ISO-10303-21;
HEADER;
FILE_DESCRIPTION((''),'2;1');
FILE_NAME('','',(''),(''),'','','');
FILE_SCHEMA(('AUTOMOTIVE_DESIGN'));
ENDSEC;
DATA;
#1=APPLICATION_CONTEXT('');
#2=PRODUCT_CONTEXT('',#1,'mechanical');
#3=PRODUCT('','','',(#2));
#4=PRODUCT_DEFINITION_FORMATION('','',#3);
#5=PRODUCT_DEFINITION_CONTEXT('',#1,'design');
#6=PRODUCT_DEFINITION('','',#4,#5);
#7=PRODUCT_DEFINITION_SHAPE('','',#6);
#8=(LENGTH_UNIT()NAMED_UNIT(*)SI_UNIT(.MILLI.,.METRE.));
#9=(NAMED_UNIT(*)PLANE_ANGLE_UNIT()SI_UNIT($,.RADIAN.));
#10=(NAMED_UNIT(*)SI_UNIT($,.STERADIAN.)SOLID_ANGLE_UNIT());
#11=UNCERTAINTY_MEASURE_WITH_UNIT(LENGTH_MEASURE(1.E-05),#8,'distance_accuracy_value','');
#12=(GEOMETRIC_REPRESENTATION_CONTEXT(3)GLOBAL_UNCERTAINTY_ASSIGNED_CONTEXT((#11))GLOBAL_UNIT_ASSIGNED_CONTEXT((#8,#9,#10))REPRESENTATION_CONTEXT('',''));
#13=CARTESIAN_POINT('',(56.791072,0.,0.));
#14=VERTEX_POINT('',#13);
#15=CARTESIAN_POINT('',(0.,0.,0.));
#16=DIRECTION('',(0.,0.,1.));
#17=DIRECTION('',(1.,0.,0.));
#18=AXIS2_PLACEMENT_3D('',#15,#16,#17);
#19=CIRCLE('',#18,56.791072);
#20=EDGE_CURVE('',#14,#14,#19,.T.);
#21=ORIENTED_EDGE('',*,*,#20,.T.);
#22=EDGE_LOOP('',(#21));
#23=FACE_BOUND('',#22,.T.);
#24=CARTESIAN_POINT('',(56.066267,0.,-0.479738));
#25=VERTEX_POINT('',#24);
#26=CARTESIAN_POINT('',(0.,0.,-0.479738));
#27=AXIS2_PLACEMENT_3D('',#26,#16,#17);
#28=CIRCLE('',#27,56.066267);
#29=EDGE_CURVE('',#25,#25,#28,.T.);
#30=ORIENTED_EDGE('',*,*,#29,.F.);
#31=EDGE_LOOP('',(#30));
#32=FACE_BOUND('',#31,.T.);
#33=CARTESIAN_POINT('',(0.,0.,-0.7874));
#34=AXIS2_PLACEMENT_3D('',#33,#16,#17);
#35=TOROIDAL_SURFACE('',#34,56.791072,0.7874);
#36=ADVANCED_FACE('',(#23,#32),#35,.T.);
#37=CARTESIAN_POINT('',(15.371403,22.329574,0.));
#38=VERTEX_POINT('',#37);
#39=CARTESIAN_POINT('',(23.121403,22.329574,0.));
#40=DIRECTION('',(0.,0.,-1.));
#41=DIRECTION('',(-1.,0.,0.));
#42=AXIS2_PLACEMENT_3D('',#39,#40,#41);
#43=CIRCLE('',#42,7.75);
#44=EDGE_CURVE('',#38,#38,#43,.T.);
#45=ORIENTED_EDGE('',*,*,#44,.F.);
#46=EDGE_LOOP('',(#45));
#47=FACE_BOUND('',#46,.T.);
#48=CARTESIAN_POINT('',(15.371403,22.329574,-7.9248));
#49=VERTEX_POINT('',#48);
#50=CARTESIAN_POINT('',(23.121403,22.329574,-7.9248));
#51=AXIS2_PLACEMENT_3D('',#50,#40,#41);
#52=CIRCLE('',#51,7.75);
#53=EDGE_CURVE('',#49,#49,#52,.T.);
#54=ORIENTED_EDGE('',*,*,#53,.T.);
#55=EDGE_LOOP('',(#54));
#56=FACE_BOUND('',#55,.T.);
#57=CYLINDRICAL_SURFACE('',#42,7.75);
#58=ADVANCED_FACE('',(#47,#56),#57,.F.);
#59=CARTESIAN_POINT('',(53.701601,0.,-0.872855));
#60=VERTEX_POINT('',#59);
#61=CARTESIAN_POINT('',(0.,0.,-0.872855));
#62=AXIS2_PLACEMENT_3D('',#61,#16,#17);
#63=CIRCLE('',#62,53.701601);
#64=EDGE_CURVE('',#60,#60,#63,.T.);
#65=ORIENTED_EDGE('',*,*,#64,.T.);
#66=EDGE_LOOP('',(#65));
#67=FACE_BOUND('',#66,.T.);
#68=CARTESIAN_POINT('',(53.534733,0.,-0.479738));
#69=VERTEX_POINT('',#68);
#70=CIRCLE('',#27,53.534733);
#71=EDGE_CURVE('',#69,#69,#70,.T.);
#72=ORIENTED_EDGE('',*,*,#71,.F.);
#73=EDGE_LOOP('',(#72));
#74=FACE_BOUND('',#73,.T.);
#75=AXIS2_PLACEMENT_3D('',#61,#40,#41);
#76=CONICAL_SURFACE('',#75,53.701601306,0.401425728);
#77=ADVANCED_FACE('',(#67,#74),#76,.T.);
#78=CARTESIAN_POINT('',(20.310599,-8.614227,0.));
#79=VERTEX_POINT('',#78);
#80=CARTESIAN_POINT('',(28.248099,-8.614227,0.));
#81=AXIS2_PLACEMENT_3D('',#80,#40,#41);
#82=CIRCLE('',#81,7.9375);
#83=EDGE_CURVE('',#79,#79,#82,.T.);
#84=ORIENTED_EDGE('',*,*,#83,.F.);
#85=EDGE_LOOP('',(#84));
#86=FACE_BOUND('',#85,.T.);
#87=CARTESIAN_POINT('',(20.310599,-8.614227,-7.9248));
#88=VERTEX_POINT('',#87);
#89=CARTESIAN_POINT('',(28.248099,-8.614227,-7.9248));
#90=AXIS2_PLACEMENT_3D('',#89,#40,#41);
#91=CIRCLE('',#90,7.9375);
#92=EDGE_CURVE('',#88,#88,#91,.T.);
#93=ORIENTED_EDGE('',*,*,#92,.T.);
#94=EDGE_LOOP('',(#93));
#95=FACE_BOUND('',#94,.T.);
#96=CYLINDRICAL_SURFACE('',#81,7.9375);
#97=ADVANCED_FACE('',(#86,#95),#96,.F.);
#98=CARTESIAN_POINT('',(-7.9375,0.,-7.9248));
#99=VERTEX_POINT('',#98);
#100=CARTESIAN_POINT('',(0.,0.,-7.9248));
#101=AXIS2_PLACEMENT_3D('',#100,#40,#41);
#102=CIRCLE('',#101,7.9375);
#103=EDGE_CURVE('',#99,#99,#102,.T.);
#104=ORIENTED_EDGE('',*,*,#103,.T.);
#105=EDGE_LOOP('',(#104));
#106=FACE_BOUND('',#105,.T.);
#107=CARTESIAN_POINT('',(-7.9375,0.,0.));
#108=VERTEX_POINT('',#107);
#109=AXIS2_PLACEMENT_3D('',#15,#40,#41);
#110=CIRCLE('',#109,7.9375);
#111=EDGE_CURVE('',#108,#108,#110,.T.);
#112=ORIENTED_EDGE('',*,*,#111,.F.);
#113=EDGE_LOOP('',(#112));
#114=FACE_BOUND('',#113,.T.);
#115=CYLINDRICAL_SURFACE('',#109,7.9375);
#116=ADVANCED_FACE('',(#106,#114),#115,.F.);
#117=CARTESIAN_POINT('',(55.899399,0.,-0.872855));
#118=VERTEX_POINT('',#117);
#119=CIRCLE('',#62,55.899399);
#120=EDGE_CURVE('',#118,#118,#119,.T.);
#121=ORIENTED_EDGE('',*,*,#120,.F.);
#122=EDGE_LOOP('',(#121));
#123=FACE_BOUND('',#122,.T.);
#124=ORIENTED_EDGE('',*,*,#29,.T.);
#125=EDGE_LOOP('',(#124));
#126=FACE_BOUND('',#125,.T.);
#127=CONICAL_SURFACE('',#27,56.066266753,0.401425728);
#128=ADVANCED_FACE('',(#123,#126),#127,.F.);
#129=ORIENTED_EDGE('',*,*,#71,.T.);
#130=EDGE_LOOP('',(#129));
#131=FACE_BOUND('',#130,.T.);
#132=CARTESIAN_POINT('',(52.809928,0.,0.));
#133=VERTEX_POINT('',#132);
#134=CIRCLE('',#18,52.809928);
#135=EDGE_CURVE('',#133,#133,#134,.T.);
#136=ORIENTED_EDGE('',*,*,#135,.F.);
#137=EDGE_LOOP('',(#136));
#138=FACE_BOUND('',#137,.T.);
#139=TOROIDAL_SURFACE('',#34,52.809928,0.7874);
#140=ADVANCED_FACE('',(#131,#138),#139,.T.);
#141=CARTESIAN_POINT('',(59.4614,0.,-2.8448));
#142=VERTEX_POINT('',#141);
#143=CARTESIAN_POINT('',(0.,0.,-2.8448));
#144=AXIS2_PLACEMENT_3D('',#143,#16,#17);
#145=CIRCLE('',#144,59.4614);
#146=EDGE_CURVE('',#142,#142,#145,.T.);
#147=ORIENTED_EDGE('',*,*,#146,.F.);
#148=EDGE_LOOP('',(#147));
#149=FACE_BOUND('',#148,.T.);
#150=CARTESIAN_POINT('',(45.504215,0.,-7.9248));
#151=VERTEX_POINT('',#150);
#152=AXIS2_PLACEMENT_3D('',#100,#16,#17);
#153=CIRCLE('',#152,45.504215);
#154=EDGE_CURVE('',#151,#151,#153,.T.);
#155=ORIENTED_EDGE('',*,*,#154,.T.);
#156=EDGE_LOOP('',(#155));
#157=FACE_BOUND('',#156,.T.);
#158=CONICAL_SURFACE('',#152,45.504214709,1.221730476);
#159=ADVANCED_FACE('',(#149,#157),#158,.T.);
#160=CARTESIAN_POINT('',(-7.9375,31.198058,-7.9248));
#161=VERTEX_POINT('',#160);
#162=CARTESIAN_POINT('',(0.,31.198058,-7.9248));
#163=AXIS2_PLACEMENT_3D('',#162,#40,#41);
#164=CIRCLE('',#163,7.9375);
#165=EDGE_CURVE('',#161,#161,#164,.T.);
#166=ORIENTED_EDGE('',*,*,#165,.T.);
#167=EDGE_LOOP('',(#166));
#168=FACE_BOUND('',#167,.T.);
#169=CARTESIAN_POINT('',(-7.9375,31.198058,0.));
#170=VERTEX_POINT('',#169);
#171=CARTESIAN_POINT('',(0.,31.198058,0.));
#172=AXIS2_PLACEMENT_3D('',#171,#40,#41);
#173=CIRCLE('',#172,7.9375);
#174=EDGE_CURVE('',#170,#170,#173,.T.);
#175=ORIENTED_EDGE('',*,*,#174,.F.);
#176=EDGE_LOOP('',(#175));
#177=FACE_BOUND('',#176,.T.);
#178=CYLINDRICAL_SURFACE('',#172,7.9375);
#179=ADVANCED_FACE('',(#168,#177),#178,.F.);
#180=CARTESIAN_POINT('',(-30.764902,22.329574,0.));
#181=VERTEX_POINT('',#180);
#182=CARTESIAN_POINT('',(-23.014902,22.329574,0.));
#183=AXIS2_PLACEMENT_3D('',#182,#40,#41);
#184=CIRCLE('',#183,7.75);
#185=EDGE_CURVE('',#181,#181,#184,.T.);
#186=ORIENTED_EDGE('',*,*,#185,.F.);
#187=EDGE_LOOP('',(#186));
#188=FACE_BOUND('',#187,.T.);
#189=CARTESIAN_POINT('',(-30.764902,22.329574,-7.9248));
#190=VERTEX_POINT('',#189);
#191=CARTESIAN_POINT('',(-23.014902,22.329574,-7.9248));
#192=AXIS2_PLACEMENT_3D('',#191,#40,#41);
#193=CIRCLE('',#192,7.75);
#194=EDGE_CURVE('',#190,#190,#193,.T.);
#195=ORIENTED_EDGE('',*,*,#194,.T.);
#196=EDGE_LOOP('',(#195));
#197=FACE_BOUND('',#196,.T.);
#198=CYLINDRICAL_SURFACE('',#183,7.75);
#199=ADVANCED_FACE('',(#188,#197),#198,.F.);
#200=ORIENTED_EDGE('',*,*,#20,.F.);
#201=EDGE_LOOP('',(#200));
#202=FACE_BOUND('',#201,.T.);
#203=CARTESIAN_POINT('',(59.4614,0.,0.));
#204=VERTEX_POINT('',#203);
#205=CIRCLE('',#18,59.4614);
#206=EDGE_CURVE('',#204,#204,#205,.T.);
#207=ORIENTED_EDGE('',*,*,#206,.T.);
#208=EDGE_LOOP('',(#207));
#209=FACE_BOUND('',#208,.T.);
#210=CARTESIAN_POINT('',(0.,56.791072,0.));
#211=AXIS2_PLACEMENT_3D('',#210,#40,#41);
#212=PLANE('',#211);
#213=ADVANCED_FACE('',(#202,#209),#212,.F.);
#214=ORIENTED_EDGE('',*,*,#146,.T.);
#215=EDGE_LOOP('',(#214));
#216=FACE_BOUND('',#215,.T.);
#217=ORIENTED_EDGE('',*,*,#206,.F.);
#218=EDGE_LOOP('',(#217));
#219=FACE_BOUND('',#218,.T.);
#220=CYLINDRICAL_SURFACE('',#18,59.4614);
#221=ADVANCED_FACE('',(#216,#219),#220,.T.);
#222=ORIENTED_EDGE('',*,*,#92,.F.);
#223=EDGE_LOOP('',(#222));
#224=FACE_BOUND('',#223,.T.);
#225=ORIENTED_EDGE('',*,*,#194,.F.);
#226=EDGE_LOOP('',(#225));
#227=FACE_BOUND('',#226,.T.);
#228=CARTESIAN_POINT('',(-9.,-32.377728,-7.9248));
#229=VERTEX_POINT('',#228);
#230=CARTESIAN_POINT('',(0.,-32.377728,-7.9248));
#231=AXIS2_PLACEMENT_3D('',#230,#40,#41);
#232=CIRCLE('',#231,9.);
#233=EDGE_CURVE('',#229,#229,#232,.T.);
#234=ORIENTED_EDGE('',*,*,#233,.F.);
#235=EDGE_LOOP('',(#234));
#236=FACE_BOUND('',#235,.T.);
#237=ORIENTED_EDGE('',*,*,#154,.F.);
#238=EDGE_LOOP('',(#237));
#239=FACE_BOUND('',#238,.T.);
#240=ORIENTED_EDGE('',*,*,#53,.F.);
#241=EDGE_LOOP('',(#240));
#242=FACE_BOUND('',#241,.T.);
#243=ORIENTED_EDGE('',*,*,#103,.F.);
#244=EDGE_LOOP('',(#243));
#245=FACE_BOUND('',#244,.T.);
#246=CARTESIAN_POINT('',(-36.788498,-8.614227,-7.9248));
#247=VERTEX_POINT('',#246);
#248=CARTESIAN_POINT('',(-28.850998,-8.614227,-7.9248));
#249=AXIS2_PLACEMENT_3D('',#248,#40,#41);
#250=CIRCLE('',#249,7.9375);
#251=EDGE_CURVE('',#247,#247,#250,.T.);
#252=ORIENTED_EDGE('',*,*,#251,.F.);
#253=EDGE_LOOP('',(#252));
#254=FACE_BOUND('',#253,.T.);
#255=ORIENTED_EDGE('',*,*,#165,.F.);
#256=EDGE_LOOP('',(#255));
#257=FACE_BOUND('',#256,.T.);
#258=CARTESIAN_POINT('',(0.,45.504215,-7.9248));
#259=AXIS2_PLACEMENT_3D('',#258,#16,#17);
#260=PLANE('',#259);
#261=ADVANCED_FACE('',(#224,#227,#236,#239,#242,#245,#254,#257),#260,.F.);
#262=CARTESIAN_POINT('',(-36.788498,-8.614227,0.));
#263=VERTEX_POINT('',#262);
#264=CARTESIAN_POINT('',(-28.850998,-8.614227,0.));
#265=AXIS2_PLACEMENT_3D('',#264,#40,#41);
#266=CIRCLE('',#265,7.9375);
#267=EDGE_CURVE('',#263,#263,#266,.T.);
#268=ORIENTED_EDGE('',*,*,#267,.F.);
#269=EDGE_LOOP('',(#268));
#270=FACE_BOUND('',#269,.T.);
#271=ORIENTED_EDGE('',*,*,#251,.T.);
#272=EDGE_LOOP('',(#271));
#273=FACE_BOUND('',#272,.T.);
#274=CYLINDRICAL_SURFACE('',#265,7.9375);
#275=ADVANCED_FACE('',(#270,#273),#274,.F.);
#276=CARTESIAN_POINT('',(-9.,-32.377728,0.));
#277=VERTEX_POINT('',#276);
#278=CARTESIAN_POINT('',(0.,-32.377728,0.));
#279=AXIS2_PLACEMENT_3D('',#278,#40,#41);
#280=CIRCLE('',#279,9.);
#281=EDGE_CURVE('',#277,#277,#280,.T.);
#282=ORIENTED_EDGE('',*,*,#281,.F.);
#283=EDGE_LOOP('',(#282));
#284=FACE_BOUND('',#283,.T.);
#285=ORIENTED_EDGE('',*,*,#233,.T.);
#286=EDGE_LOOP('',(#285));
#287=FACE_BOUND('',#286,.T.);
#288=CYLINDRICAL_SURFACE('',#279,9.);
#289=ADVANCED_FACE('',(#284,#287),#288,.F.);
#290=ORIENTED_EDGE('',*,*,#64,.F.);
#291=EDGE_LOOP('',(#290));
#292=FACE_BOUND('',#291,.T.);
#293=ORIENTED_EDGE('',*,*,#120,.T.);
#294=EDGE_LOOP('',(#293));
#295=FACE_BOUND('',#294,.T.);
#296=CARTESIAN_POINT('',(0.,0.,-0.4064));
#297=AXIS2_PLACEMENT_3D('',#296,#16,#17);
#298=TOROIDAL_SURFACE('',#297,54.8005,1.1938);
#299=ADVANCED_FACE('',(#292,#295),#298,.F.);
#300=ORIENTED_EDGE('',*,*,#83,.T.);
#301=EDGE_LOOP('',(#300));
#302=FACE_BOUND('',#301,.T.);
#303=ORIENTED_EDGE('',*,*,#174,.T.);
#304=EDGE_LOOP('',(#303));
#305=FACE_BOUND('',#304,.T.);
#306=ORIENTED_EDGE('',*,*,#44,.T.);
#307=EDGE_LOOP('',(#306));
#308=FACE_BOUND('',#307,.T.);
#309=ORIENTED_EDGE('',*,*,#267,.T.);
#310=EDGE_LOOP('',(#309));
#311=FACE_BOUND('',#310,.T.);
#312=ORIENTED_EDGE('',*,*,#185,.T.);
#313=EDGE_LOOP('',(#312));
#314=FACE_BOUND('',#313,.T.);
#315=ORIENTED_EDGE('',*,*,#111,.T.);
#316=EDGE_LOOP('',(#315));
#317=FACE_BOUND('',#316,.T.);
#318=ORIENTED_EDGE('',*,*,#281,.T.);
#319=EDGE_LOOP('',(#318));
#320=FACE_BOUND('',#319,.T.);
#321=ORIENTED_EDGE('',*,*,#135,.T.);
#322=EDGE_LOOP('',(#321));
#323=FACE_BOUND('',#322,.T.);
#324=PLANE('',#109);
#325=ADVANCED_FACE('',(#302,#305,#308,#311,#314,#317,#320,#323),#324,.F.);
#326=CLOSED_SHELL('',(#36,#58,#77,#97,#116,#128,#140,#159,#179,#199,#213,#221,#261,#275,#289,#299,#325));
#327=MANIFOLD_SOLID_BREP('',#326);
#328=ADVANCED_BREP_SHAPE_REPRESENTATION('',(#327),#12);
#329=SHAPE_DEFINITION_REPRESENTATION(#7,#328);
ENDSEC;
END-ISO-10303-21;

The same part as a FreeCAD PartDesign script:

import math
import FreeCAD as App
import Part
import Sketcher
Q = App.Units.Quantity

doc = App.newDocument("Part")
params = doc.addObject("Spreadsheet::Sheet", "Params")
for row, (alias, value) in enumerate([
    ("sketch1_radius", "0.031 in"),
    ("sketch1_radius2", "0.047 in"),
    ("sketch1_height", "0.312 in"),
    ("revolution_angle", "360 deg"),
    ("sketch2_diameter", "0.625 in"),
], start=1):
    params.set(f"A{row}", alias)
    params.set(f"B{row}", "=" + value)
    params.setAlias(f"B{row}", alias)

body = doc.addObject("PartDesign::Body", "Body")

# Sketch on YZ plane
sketch1 = doc.addObject("Sketcher::SketchObject", "Sketch")
body.addObject(sketch1)
sketch1.AttachmentSupport = (doc.YZ_Plane, [""])
sketch1.MapMode = "FlatFace"
sketch1.addGeometry(Part.LineSegment(App.Vector(52.81, 0, 0), App.Vector(0, 0, 0)), False)
sketch1.addGeometry(Part.LineSegment(App.Vector(0, 0, 0), App.Vector(0, -7.92, 0)), False)
sketch1.addGeometry(Part.LineSegment(App.Vector(0, -7.92, 0), App.Vector(45.5, -7.92, 0)), False)
sketch1.addGeometry(Part.LineSegment(App.Vector(45.5, -7.92, 0), App.Vector(59.46, -2.84, 0)), False)
sketch1.addGeometry(Part.LineSegment(App.Vector(59.46, -2.84, 0), App.Vector(59.46, 0, 0)), False)
sketch1.addGeometry(Part.LineSegment(App.Vector(59.46, 0, 0), App.Vector(56.79, 0, 0)), False)
sketch1.addGeometry(Part.ArcOfCircle(Part.Circle(App.Vector(56.79, -0.79, 0), App.Vector(0, 0, 1), 0.79), math.radians(90), math.radians(157)), False)
sketch1.addGeometry(Part.LineSegment(App.Vector(56.07, -0.48, 0), App.Vector(55.9, -0.87, 0)), False)
sketch1.addGeometry(Part.ArcOfCircle(Part.Circle(App.Vector(54.8, -0.41, 0), App.Vector(0, 0, 1), 1.19), math.radians(-157), math.radians(-23)), False)
sketch1.addGeometry(Part.LineSegment(App.Vector(53.7, -0.87, 0), App.Vector(53.53, -0.48, 0)), False)
sketch1.addGeometry(Part.ArcOfCircle(Part.Circle(App.Vector(52.81, -0.79, 0), App.Vector(0, 0, 1), 0.79), math.radians(23), math.radians(90)), False)
sketch1.addConstraint(Sketcher.Constraint("Coincident", 0, 2, 1, 1))
sketch1.addConstraint(Sketcher.Constraint("Coincident", 1, 2, 2, 1))
sketch1.addConstraint(Sketcher.Constraint("Coincident", 2, 2, 3, 1))
sketch1.addConstraint(Sketcher.Constraint("Coincident", 3, 2, 4, 1))
sketch1.addConstraint(Sketcher.Constraint("Coincident", 4, 2, 5, 1))
sketch1.addConstraint(Sketcher.Constraint("Tangent", 5, 2, 6, 1))
sketch1.addConstraint(Sketcher.Constraint("Tangent", 6, 2, 7, 1))
sketch1.addConstraint(Sketcher.Constraint("Tangent", 7, 2, 8, 2))
sketch1.addConstraint(Sketcher.Constraint("Tangent", 8, 1, 9, 1))
sketch1.addConstraint(Sketcher.Constraint("Tangent", 9, 2, 10, 1))
sketch1.addConstraint(Sketcher.Constraint("Tangent", 10, 2, 0, 1))
sketch1.addConstraint(Sketcher.Constraint("Horizontal", 0))
sketch1.addConstraint(Sketcher.Constraint("Vertical", 1))
sketch1.addConstraint(Sketcher.Constraint("Horizontal", 2))
sketch1.addConstraint(Sketcher.Constraint("Vertical", 4))
sketch1.addConstraint(Sketcher.Constraint("Horizontal", 5))
sketch1.addConstraint(Sketcher.Constraint("Coincident", 0, 2, -1, 1))
sketch1.addConstraint(Sketcher.Constraint("Equal", 6, 10))
sketch1.addConstraint(Sketcher.Constraint("PointOnObject", 4, 2, -1))
sketch1.addConstraint(Sketcher.Constraint("Horizontal", 7, 2, 8, 1))
sketch1.addConstraint(Sketcher.Constraint("Angle", 3, Q("20 deg")))
sketch1.addConstraint(Sketcher.Constraint("Angle", 7, Q("-113 deg")))
sketch1.addConstraint(Sketcher.Constraint("Radius", 6, Q("0.031 in")))
sketch1.addConstraint(Sketcher.Constraint("Radius", 8, Q("0.047 in")))
sketch1.addConstraint(Sketcher.Constraint("DistanceY", 2, 2, 3, 2, Q("0.2 in")))
sketch1.addConstraint(Sketcher.Constraint("DistanceY", 1, 2, 1, 1, Q("0.312 in")))
sketch1.addConstraint(Sketcher.Constraint("DistanceY", 8, 3, -1, 1, Q("0.016 in")))
sketch1.addConstraint(Sketcher.Constraint("DistanceX", -1, 1, 3, 2, Q("2.341 in")))
sketch1.addConstraint(Sketcher.Constraint("DistanceX", -1, 1, 8, 3, Q("2.1575 in")))
sketch1.setExpression("Constraints[22]", "Params.sketch1_radius")
sketch1.setExpression("Constraints[23]", "Params.sketch1_radius2")
sketch1.setExpression("Constraints[25]", "Params.sketch1_height")
revolution = doc.addObject("PartDesign::Revolution", "Revolution")
body.addObject(revolution)
revolution.Profile = sketch1
revolution.ReferenceAxis = (sketch1, ["V_Axis"])
revolution.setExpression("Angle", "Params.revolution_angle")

# Sketch on XY plane
sketch2 = doc.addObject("Sketcher::SketchObject", "Sketch001")
body.addObject(sketch2)
sketch2.AttachmentSupport = (doc.XY_Plane, [""])
sketch2.MapMode = "FlatFace"
sketch2.AttachmentOffset = App.Placement(App.Vector(0, 0, -0.312 * 25.4), App.Rotation())
sketch2.addGeometry(Part.Circle(App.Vector(23, 22, 0), App.Vector(0, 0, 1), 8), False)
sketch2.addGeometry(Part.Circle(App.Vector(-23, 22, 0), App.Vector(0, 0, 1), 8), False)
sketch2.addGeometry(Part.Circle(App.Vector(0, 31, 0), App.Vector(0, 0, 1), 8), False)
sketch2.addGeometry(Part.Circle(App.Vector(0, 0, 0), App.Vector(0, 0, 1), 8), False)
sketch2.addGeometry(Part.Circle(App.Vector(28, -9, 0), App.Vector(0, 0, 1), 8), False)
sketch2.addGeometry(Part.Circle(App.Vector(0, -32, 0), App.Vector(0, 0, 1), 9), False)
sketch2.addGeometry(Part.Circle(App.Vector(-29, -9, 0), App.Vector(0, 0, 1), 8), False)
sketch2.addConstraint(Sketcher.Constraint("Coincident", 3, 3, -1, 1))
sketch2.addConstraint(Sketcher.Constraint("Equal", 0, 1))
sketch2.addConstraint(Sketcher.Constraint("Equal", 2, 3))
sketch2.addConstraint(Sketcher.Constraint("Equal", 3, 4))
sketch2.addConstraint(Sketcher.Constraint("Equal", 4, 6))
sketch2.addConstraint(Sketcher.Constraint("PointOnObject", 2, 3, -2))
sketch2.addConstraint(Sketcher.Constraint("PointOnObject", 5, 3, -2))
sketch2.addConstraint(Sketcher.Constraint("Horizontal", 0, 3, 1, 3))
sketch2.addConstraint(Sketcher.Constraint("Horizontal", 4, 3, 6, 3))
sketch2.addConstraint(Sketcher.Constraint("Diameter", 2, Q("0.625 in")))
sketch2.addConstraint(Sketcher.Constraint("Diameter", 0, 15.5))
sketch2.addConstraint(Sketcher.Constraint("Diameter", 5, 18.0))
sketch2.addConstraint(Sketcher.Constraint("DistanceX", -1, 1, 4, 3, 28.248099))
sketch2.addConstraint(Sketcher.Constraint("DistanceY", 4, 3, 0, 3, 30.943802))
sketch2.addConstraint(Sketcher.Constraint("DistanceX", 1, 3, 4, 3, 51.263002))
sketch2.addConstraint(Sketcher.Constraint("DistanceY", 5, 3, 4, 3, 23.763501))
sketch2.addConstraint(Sketcher.Constraint("DistanceX", -1, 1, 0, 3, 23.121403))
sketch2.addConstraint(Sketcher.Constraint("DistanceY", -1, 1, 0, 3, 22.329574))
sketch2.addConstraint(Sketcher.Constraint("DistanceY", -1, 1, 2, 3, 31.198058))
sketch2.addConstraint(Sketcher.Constraint("DistanceX", 6, 3, -1, 1, 28.850998))
sketch2.setExpression("Constraints[9]", "Params.sketch2_diameter")
pocket1 = doc.addObject("PartDesign::Pocket", "Pocket")
body.addObject(pocket1)
pocket1.Profile = sketch2
pocket1.Type = "ThroughAll"
pocket1.Reversed = True

doc.recompute()
